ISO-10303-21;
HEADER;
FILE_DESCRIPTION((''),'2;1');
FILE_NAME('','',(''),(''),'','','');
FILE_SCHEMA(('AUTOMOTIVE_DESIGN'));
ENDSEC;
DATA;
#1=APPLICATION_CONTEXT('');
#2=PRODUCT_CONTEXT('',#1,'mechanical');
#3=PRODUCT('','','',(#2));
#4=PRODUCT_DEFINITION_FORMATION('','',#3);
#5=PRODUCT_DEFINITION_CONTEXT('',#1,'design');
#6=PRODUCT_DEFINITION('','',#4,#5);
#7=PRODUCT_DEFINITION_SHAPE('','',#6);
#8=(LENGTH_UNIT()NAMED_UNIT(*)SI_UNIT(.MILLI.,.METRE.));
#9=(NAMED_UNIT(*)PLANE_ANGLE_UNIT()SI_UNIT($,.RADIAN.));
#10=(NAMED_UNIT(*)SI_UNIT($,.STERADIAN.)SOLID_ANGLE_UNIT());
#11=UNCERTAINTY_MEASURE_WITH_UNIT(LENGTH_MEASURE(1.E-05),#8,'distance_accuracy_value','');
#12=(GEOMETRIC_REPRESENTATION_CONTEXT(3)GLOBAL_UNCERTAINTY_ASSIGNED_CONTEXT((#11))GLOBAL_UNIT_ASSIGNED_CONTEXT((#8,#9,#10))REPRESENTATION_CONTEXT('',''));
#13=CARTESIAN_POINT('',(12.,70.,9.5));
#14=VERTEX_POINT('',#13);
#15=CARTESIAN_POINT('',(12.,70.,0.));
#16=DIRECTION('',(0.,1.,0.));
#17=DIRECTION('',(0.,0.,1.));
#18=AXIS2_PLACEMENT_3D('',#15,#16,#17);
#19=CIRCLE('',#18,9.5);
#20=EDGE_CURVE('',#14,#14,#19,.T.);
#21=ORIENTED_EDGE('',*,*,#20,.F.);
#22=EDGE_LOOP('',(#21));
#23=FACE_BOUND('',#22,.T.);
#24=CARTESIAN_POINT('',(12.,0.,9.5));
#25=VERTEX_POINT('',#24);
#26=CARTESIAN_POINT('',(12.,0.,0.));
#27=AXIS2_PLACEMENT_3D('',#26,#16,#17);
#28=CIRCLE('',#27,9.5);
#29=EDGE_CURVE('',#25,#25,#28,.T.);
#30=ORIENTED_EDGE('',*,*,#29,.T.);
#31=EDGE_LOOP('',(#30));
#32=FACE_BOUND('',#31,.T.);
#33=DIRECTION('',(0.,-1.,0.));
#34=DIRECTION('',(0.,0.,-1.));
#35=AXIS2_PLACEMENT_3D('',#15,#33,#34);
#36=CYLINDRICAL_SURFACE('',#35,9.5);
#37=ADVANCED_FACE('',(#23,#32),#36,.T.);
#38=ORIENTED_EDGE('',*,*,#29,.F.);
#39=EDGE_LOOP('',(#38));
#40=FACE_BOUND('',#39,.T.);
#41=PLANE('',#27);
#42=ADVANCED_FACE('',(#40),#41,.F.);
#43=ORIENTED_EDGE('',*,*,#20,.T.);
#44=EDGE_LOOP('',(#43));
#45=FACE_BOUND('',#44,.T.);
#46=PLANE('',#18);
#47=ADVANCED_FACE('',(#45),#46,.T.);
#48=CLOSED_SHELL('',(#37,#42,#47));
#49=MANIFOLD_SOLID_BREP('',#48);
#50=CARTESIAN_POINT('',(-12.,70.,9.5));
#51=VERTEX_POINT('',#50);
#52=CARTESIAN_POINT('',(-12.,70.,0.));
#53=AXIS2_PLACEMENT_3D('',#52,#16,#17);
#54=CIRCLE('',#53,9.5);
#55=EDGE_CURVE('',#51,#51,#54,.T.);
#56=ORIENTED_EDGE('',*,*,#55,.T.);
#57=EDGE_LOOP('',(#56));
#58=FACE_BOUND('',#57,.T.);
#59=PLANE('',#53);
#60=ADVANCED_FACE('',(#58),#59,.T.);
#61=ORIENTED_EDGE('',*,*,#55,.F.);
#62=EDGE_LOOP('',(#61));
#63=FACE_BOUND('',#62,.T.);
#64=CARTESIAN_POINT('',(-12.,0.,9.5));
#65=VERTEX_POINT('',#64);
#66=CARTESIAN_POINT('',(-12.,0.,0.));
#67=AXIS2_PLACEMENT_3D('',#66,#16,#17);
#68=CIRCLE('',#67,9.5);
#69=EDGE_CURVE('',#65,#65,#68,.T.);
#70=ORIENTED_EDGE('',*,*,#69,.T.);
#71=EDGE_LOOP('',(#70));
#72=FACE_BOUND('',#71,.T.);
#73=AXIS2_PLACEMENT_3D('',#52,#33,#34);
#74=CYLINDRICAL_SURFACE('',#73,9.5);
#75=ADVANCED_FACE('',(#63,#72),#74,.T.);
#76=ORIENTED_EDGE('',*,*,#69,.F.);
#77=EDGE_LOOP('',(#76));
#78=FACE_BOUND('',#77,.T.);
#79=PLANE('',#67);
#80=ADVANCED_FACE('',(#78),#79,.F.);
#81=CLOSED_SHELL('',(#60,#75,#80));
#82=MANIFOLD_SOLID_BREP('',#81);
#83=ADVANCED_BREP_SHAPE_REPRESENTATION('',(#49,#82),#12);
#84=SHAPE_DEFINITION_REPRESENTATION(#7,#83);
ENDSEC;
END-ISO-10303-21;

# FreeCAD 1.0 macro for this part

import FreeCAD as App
import Part
import Sketcher

V = App.Vector

doc = App.newDocument("Part")
body = doc.addObject("PartDesign::Body", "Body")

# Sketch on XZ plane
sketch1 = body.newObject("Sketcher::SketchObject", "Sketch")
sketch1.AttachmentSupport = (doc.getObject("XZ_Plane"), [""])
sketch1.MapMode = "FlatFace"
sketch1.addGeometry(Part.Circle(V(-12, 0, 0), V(0, 0, 1), 10), False)
sketch1.addConstraint([
    Sketcher.Constraint("PointOnObject", 0, 3, -1),
    Sketcher.Constraint("Diameter", 0, 19.0),
    Sketcher.Constraint("DistanceX", 0, 3, -1, 1, 12.0),
])
pad1 = body.newObject("PartDesign::Pad", "Pad")
pad1.Profile = sketch1
pad1.Length = 70
pad1.Reversed = True
body2 = doc.addObject("PartDesign::Body", "Body001")

# Sketch on XZ plane
sketch2 = body2.newObject("Sketcher::SketchObject", "Sketch001")
sketch2.AttachmentSupport = (doc.getObject("XZ_Plane001"), [""])
sketch2.MapMode = "FlatFace"
sketch2.addGeometry(Part.Circle(V(12, 0, 0), V(0, 0, 1), 10), False)
sketch2.addConstraint([
    Sketcher.Constraint("PointOnObject", 0, 3, -1),
    Sketcher.Constraint("Diameter", 0, 19.0),
    Sketcher.Constraint("DistanceX", -1, 1, 0, 3, 12.0),
])
pad2 = body2.newObject("PartDesign::Pad", "Pad001")
pad2.Profile = sketch2
pad2.Length = 70
pad2.Reversed = True

doc.recompute()
